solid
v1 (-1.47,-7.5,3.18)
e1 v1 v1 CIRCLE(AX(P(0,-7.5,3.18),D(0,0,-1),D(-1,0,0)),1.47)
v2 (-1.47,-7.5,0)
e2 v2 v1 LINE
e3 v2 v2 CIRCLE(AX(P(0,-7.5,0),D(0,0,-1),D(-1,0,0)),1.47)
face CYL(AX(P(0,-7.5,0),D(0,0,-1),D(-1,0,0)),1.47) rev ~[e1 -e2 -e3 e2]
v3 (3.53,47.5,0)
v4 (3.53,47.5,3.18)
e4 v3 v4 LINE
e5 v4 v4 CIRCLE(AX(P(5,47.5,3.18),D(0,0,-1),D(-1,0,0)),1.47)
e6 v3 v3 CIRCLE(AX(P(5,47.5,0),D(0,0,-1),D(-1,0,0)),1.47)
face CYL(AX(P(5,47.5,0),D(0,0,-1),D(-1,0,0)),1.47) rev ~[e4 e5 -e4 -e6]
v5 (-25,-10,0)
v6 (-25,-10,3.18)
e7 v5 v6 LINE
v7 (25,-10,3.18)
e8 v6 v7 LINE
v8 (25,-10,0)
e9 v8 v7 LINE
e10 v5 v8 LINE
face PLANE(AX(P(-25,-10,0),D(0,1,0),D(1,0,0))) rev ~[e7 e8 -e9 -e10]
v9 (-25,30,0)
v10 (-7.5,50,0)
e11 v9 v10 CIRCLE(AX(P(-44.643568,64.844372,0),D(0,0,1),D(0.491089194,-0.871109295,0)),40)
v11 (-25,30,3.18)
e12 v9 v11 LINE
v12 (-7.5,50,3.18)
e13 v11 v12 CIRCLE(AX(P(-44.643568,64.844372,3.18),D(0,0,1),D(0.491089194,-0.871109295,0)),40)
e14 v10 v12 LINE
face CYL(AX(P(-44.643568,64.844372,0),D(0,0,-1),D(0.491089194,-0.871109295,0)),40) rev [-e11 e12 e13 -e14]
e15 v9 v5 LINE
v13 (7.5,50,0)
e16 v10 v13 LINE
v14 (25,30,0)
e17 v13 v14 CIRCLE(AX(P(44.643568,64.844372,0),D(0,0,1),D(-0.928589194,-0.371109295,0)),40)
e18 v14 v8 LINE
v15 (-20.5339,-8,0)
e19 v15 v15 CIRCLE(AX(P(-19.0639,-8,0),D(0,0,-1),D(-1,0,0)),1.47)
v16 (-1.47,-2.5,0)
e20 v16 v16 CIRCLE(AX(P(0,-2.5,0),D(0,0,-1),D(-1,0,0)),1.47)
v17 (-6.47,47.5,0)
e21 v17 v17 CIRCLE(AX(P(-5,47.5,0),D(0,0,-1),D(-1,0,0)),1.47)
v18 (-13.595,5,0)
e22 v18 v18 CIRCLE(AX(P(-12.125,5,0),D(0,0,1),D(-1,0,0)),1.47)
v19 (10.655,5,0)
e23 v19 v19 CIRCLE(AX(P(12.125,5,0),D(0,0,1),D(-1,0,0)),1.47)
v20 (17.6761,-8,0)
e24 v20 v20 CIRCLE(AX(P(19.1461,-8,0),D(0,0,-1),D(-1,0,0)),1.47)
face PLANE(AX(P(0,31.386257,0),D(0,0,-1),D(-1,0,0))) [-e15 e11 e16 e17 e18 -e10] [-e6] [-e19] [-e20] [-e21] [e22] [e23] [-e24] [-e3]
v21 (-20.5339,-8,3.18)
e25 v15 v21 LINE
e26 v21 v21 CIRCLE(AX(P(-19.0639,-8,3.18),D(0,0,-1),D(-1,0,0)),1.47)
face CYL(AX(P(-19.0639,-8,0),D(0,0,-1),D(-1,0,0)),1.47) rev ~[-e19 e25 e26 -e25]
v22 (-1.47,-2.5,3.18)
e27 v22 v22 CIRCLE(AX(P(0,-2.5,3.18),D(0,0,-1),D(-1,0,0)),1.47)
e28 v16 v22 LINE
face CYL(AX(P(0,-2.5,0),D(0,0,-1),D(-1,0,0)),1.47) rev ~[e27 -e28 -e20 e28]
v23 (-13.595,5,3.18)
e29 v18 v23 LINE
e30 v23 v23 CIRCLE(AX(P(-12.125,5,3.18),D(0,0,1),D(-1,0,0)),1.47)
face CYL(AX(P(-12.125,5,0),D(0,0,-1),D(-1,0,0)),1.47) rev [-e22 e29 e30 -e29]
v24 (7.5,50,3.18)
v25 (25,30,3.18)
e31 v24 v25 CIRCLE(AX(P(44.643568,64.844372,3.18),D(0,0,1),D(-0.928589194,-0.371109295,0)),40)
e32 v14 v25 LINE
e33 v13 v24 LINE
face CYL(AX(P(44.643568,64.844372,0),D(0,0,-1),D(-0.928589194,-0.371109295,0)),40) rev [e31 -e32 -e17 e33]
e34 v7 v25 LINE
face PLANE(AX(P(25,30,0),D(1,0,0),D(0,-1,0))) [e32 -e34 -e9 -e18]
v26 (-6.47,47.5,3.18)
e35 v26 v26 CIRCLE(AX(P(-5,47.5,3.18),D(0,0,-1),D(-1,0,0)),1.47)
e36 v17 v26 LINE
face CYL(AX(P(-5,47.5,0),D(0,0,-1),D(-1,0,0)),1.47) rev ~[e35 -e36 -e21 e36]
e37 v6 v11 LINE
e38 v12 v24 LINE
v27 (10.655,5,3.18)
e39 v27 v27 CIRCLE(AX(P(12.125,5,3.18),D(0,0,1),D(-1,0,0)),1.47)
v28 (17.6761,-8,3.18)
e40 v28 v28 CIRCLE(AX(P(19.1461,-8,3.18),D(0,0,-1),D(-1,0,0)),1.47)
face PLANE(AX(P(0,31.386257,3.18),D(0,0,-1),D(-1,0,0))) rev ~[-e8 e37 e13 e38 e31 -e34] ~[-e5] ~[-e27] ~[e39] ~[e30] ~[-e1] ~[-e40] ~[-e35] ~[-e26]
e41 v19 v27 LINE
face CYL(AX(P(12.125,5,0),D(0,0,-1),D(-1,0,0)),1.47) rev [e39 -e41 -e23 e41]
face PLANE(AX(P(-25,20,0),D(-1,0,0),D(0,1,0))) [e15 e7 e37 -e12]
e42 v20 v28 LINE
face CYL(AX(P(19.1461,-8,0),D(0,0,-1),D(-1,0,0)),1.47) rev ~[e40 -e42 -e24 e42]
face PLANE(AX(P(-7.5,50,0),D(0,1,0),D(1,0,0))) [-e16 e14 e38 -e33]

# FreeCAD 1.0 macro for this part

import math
import FreeCAD as App
import Part
import Sketcher

V = App.Vector


def add_polygon(sketch, points):
    """Adds a closed chain of lines whose ends are joined by coincident constraints."""
    first, n = sketch.GeometryCount, len(points)
    for a, b in zip(points, points[1:] + points[:1]):
        sketch.addGeometry(Part.LineSegment(App.Vector(*a, 0), App.Vector(*b, 0)), False)
    for i in range(n):
        sketch.addConstraint(Sketcher.Constraint("Coincident", first + i, 2, first + (i + 1) % n, 1))

doc = App.newDocument("Part")
body = doc.addObject("PartDesign::Body", "Body")

sketch1 = body.newObject("Sketcher::SketchObject", "Sketch")
sketch1.AttachmentSupport = (doc.getObject("XY_Plane"), [""])
sketch1.MapMode = "FlatFace"
add_polygon(sketch1, [(-25, 20), (-25, -10), (25, -10), (25, 20)])
sketch1.addGeometry(Part.Circle(V(-12.1, 5, 0), V(0, 0, 1), 1.5), False)
sketch1.addGeometry(Part.Circle(V(12.1, 5, 0), V(0, 0, 1), 1.5), False)
sketch1.addConstraint([
    Sketcher.Constraint("Vertical", 0),
    Sketcher.Constraint("Horizontal", 1),
    Sketcher.Constraint("Vertical", 2),
    Sketcher.Constraint("Horizontal", 3),
    Sketcher.Constraint("Equal", 4, 5),
    Sketcher.Constraint("Symmetric", 4, 3, 5, 3, -2),
    Sketcher.Constraint("Diameter", 4, 2.94),
    Sketcher.Constraint("DistanceX", 1, 1, 1, 2, 50.0),
    Sketcher.Constraint("DistanceY", 0, 2, 0, 1, 30.0),
    Sketcher.Constraint("DistanceY", -1, 1, 4, 3, 5.0),
    Sketcher.Constraint("DistanceX", 0, 2, -1, 1, 25.0),
    Sketcher.Constraint("DistanceY", 0, 2, -1, 1, 10.0),
    Sketcher.Constraint("DistanceX", 4, 3, 5, 3, 24.25),
])
pad1 = body.newObject("PartDesign::Pad", "Pad")
pad1.Profile = sketch1
pad1.Length = 3.18

sketch2 = body.newObject("Sketcher::SketchObject", "Sketch001")
sketch2.AttachmentSupport = (doc.getObject("XY_Plane"), [""])
sketch2.MapMode = "FlatFace"
sketch2.addGeometry([
    Part.LineSegment(V(25, 20, 0), V(-25, 20, 0)),
    Part.LineSegment(V(-25, 20, 0), V(-25, 30, 0)),
    Part.ArcOfCircle(Part.Circle(V(-45, 65, 0), V(0, 0, 1), 40), math.radians(-61), math.radians(-22)),
    Part.LineSegment(V(-8, 50, 0), V(8, 50, 0)),
    Part.ArcOfCircle(Part.Circle(V(45, 65, 0), V(0, 0, 1), 40), math.radians(-158), math.radians(-119)),
    Part.LineSegment(V(25, 30, 0), V(25, 20, 0)),
], False)
sketch2.addConstraint([
    Sketcher.Constraint("Coincident", 0, 2, 1, 1),
    Sketcher.Constraint("Coincident", 1, 2, 2, 1),
    Sketcher.Constraint("Coincident", 2, 2, 3, 1),
    Sketcher.Constraint("Coincident", 3, 2, 4, 1),
    Sketcher.Constraint("Coincident", 4, 2, 5, 1),
    Sketcher.Constraint("Coincident", 5, 2, 0, 1),
    Sketcher.Constraint("Horizontal", 0),
    Sketcher.Constraint("Vertical", 1),
    Sketcher.Constraint("Horizontal", 3),
    Sketcher.Constraint("Vertical", 5),
    Sketcher.Constraint("Equal", 2, 4),
    Sketcher.Constraint("Symmetric", 2, 3, 4, 3, -2),
    Sketcher.Constraint("Horizontal", 1, 2, 4, 2),
    Sketcher.Constraint("Radius", 2, 40.0),
    Sketcher.Constraint("DistanceX", 0, 2, 0, 1, 50.0),
    Sketcher.Constraint("DistanceX", 3, 1, 3, 2, 15.0),
    Sketcher.Constraint("DistanceY", 1, 1, 1, 2, 10.0),
    Sketcher.Constraint("DistanceY", -1, 1, 0, 2, 20.0),
    Sketcher.Constraint("DistanceY", -1, 1, 2, 2, 50.0),
])
pad2 = body.newObject("PartDesign::Pad", "Pad001")
pad2.Profile = sketch2
pad2.Length = 3.18

sketch3 = body.newObject("Sketcher::SketchObject", "Sketch002")
sketch3.AttachmentSupport = (doc.getObject("XY_Plane"), [""])
sketch3.MapMode = "FlatFace"
sketch3.addGeometry([
    Part.Circle(V(5, 47.5, 0), V(0, 0, 1), 1.5),
    Part.Circle(V(-5, 47.5, 0), V(0, 0, 1), 1.5),
], False)
sketch3.addConstraint([
    Sketcher.Constraint("Equal", 0, 1),
    Sketcher.Constraint("Symmetric", 0, 3, 1, 3, -2),
    Sketcher.Constraint("Diameter", 0, 2.94),
    Sketcher.Constraint("DistanceX", -1, 1, 0, 3, 5.0),
    Sketcher.Constraint("DistanceY", -1, 1, 0, 3, 47.5),
])
pocket1 = body.newObject("PartDesign::Pocket", "Pocket")
pocket1.Profile = sketch3
pocket1.Type = "ThroughAll"
pocket1.Reversed = True

sketch4 = body.newObject("Sketcher::SketchObject", "Sketch003")
sketch4.AttachmentSupport = (doc.getObject("XY_Plane"), [""])
sketch4.MapMode = "FlatFace"
sketch4.addGeometry([
    Part.Circle(V(0, -7.5, 0), V(0, 0, 1), 1.5),
    Part.Circle(V(19.1, -8, 0), V(0, 0, 1), 1.5),
    Part.Circle(V(0, -2.5, 0), V(0, 0, 1), 1.5),
    Part.Circle(V(-19.1, -8, 0), V(0, 0, 1), 1.5),
], False)
sketch4.addConstraint([
    Sketcher.Constraint("Equal", 0, 1),
    Sketcher.Constraint("Equal", 1, 2),
    Sketcher.Constraint("Equal", 2, 3),
    Sketcher.Constraint("PointOnObject", 0, 3, -2),
    Sketcher.Constraint("PointOnObject", 2, 3, -2),
    Sketcher.Constraint("Horizontal", 1, 3, 3, 3),
    Sketcher.Constraint("Diameter", 0, 2.94),
    Sketcher.Constraint("DistanceY", 1, 3, -1, 1, 8.0),
    Sketcher.Constraint("DistanceY", 0, 3, 2, 3, 5.0),
    Sketcher.Constraint("DistanceY", 0, 3, -1, 1, 7.5),
    Sketcher.Constraint("DistanceX", 3, 3, 1, 3, 38.21),
    Sketcher.Constraint("DistanceX", -1, 1, 1, 3, 19.1461),
])
pocket2 = body.newObject("PartDesign::Pocket", "Pocket001")
pocket2.Profile = sketch4
pocket2.Type = "ThroughAll"
pocket2.Reversed = True

doc.recompute()
